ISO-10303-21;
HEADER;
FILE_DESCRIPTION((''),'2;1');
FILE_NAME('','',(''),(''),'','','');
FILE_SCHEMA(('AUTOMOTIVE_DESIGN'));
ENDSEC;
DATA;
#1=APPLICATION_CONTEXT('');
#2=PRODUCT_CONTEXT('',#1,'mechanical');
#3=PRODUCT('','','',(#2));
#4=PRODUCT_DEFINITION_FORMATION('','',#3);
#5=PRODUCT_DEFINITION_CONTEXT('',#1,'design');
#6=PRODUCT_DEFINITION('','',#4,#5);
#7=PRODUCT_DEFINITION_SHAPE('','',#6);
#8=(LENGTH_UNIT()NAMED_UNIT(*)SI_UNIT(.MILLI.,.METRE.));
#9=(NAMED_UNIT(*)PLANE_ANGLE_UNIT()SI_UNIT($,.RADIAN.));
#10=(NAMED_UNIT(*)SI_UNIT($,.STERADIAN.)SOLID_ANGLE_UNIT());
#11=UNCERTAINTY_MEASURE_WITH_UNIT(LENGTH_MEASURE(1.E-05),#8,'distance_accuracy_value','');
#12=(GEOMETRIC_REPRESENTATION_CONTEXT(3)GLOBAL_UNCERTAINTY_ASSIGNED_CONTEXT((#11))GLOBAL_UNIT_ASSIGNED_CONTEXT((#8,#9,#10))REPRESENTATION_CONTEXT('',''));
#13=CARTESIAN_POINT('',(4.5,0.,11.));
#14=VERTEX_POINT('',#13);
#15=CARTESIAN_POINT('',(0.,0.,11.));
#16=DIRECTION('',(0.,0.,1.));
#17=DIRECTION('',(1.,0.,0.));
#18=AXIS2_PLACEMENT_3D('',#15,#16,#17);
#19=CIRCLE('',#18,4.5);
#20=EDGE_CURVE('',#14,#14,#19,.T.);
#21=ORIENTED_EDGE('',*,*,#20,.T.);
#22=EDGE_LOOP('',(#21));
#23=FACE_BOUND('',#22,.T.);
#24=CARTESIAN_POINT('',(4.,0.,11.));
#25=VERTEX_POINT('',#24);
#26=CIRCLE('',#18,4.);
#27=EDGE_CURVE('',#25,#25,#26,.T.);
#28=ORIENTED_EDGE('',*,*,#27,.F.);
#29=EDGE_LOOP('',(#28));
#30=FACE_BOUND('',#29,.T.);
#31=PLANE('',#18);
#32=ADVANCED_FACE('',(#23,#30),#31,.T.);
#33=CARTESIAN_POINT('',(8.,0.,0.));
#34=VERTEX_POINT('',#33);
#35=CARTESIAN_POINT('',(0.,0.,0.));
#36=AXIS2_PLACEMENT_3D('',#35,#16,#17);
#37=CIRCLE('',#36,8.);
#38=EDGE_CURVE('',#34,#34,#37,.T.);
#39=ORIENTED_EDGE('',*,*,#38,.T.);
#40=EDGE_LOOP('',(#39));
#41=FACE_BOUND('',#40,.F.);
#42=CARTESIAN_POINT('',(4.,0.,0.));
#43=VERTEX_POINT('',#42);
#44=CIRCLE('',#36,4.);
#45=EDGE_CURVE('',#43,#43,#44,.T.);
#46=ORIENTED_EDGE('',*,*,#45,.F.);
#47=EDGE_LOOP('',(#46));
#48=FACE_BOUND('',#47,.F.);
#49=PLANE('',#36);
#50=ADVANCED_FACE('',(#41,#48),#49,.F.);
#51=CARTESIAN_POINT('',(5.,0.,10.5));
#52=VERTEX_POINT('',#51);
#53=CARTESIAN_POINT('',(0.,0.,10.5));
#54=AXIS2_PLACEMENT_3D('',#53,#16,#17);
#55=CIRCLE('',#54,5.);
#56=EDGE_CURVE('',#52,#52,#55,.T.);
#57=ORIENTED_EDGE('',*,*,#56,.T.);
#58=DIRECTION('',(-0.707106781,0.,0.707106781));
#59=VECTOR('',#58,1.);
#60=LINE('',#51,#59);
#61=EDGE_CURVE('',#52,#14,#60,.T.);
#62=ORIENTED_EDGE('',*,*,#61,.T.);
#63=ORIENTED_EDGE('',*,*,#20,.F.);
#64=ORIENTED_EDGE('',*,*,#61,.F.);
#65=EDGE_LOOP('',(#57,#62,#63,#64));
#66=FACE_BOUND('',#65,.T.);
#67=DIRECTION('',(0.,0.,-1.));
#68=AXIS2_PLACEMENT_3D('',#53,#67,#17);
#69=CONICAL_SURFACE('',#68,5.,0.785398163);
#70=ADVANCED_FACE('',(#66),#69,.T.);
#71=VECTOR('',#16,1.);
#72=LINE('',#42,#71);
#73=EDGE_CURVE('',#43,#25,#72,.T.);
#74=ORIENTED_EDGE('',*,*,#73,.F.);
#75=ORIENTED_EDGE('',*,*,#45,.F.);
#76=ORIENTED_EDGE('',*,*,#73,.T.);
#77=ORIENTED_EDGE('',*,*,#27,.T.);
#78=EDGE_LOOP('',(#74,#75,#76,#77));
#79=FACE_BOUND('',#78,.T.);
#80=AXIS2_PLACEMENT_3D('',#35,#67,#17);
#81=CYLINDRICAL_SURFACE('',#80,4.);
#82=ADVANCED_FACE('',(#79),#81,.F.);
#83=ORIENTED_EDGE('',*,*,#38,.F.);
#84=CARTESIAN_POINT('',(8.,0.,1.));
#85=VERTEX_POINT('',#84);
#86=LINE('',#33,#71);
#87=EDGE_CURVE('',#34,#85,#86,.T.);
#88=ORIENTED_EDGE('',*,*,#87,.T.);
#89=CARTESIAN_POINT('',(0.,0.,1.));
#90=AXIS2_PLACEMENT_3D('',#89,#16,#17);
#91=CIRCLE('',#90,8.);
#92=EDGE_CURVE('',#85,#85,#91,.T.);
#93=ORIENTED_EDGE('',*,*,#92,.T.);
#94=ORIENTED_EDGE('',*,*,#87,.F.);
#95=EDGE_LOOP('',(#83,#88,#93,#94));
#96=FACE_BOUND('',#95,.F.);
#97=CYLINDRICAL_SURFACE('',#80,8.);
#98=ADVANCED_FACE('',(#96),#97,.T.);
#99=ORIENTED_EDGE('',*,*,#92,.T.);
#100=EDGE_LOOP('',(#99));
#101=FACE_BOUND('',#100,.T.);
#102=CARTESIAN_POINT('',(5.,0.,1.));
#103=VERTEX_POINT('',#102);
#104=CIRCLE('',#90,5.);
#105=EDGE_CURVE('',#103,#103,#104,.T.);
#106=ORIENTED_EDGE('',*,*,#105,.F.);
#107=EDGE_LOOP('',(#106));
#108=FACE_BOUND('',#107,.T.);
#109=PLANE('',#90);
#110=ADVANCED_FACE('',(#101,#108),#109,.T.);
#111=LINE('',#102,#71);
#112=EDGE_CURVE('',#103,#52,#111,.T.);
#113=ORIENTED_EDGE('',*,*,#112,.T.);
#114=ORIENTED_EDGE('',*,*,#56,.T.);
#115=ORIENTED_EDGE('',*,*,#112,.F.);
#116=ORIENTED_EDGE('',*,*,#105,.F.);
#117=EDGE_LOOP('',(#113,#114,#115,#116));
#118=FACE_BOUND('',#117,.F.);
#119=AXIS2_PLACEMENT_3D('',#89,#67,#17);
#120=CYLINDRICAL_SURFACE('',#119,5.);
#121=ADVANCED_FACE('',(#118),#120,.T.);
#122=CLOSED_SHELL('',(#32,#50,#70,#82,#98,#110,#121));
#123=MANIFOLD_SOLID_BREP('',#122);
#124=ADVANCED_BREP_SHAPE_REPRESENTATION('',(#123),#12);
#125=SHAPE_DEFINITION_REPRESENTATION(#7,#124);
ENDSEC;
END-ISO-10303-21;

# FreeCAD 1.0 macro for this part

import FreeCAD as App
import Part
import Sketcher
from FreeCAD import Vector
Q = App.Units.Quantity


def edges_at(feature, points):
    """Names of the edges that pass closest to the given points."""
    edges = feature.Shape.Edges
    near = lambda p: min(range(len(edges)), key=lambda i: edges[i].distToShape(Part.Vertex(*p))[0])
    return sorted({f"Edge{near(p) + 1}" for p in points})

doc = App.newDocument("Part")
body = doc.addObject("PartDesign::Body", "Body")

sketch1 = doc.addObject("Sketcher::SketchObject", "Sketch")
body.addObject(sketch1)
sketch1.AttachmentSupport = (doc.XY_Plane, [""])
sketch1.MapMode = "FlatFace"
sketch1.addGeometry(Part.Circle(Vector(0, 0, 0), Vector(0, 0, 1), 8), False)
sketch1.addGeometry(Part.Circle(Vector(0, 0, 0), Vector(0, 0, 1), 4), False)
sketch1.addConstraint(Sketcher.Constraint("Coincident", 0, 3, -1, 1))
sketch1.addConstraint(Sketcher.Constraint("Coincident", 1, 3, -1, 1))
sketch1.addConstraint(Sketcher.Constraint("Diameter", 0, Q("16 mm")))
sketch1.addConstraint(Sketcher.Constraint("Diameter", 1, Q("8 mm")))
pad1 = doc.addObject("PartDesign::Pad", "Pad")
body.addObject(pad1)
pad1.Profile = sketch1
pad1.Length = 1

sketch2 = doc.addObject("Sketcher::SketchObject", "Sketch001")
body.addObject(sketch2)
sketch2.AttachmentSupport = (doc.XY_Plane, [""])
sketch2.MapMode = "FlatFace"
sketch2.AttachmentOffset = App.Placement(Vector(0, 0, 1), App.Rotation())
sketch2.addGeometry(Part.Circle(Vector(0, 0, 0), Vector(0, 0, 1), 5), False)
sketch2.addGeometry(Part.Circle(Vector(0, 0, 0), Vector(0, 0, 1), 4), False)
sketch2.addConstraint(Sketcher.Constraint("Coincident", 0, 3, -1, 1))
sketch2.addConstraint(Sketcher.Constraint("Coincident", 1, 3, -1, 1))
sketch2.addConstraint(Sketcher.Constraint("Diameter", 0, Q("10 mm")))
sketch2.addConstraint(Sketcher.Constraint("Diameter", 1, Q("8 mm")))
pad2 = doc.addObject("PartDesign::Pad", "Pad001")
body.addObject(pad2)
pad2.Profile = sketch2
pad2.Length = 10
doc.recompute()

chamfer = doc.addObject("PartDesign::Chamfer", "Chamfer")
body.addObject(chamfer)
chamfer.Base = (pad2, edges_at(pad2, [(-5, 0, 11)]))
chamfer.Size = 0.5

doc.recompute()
